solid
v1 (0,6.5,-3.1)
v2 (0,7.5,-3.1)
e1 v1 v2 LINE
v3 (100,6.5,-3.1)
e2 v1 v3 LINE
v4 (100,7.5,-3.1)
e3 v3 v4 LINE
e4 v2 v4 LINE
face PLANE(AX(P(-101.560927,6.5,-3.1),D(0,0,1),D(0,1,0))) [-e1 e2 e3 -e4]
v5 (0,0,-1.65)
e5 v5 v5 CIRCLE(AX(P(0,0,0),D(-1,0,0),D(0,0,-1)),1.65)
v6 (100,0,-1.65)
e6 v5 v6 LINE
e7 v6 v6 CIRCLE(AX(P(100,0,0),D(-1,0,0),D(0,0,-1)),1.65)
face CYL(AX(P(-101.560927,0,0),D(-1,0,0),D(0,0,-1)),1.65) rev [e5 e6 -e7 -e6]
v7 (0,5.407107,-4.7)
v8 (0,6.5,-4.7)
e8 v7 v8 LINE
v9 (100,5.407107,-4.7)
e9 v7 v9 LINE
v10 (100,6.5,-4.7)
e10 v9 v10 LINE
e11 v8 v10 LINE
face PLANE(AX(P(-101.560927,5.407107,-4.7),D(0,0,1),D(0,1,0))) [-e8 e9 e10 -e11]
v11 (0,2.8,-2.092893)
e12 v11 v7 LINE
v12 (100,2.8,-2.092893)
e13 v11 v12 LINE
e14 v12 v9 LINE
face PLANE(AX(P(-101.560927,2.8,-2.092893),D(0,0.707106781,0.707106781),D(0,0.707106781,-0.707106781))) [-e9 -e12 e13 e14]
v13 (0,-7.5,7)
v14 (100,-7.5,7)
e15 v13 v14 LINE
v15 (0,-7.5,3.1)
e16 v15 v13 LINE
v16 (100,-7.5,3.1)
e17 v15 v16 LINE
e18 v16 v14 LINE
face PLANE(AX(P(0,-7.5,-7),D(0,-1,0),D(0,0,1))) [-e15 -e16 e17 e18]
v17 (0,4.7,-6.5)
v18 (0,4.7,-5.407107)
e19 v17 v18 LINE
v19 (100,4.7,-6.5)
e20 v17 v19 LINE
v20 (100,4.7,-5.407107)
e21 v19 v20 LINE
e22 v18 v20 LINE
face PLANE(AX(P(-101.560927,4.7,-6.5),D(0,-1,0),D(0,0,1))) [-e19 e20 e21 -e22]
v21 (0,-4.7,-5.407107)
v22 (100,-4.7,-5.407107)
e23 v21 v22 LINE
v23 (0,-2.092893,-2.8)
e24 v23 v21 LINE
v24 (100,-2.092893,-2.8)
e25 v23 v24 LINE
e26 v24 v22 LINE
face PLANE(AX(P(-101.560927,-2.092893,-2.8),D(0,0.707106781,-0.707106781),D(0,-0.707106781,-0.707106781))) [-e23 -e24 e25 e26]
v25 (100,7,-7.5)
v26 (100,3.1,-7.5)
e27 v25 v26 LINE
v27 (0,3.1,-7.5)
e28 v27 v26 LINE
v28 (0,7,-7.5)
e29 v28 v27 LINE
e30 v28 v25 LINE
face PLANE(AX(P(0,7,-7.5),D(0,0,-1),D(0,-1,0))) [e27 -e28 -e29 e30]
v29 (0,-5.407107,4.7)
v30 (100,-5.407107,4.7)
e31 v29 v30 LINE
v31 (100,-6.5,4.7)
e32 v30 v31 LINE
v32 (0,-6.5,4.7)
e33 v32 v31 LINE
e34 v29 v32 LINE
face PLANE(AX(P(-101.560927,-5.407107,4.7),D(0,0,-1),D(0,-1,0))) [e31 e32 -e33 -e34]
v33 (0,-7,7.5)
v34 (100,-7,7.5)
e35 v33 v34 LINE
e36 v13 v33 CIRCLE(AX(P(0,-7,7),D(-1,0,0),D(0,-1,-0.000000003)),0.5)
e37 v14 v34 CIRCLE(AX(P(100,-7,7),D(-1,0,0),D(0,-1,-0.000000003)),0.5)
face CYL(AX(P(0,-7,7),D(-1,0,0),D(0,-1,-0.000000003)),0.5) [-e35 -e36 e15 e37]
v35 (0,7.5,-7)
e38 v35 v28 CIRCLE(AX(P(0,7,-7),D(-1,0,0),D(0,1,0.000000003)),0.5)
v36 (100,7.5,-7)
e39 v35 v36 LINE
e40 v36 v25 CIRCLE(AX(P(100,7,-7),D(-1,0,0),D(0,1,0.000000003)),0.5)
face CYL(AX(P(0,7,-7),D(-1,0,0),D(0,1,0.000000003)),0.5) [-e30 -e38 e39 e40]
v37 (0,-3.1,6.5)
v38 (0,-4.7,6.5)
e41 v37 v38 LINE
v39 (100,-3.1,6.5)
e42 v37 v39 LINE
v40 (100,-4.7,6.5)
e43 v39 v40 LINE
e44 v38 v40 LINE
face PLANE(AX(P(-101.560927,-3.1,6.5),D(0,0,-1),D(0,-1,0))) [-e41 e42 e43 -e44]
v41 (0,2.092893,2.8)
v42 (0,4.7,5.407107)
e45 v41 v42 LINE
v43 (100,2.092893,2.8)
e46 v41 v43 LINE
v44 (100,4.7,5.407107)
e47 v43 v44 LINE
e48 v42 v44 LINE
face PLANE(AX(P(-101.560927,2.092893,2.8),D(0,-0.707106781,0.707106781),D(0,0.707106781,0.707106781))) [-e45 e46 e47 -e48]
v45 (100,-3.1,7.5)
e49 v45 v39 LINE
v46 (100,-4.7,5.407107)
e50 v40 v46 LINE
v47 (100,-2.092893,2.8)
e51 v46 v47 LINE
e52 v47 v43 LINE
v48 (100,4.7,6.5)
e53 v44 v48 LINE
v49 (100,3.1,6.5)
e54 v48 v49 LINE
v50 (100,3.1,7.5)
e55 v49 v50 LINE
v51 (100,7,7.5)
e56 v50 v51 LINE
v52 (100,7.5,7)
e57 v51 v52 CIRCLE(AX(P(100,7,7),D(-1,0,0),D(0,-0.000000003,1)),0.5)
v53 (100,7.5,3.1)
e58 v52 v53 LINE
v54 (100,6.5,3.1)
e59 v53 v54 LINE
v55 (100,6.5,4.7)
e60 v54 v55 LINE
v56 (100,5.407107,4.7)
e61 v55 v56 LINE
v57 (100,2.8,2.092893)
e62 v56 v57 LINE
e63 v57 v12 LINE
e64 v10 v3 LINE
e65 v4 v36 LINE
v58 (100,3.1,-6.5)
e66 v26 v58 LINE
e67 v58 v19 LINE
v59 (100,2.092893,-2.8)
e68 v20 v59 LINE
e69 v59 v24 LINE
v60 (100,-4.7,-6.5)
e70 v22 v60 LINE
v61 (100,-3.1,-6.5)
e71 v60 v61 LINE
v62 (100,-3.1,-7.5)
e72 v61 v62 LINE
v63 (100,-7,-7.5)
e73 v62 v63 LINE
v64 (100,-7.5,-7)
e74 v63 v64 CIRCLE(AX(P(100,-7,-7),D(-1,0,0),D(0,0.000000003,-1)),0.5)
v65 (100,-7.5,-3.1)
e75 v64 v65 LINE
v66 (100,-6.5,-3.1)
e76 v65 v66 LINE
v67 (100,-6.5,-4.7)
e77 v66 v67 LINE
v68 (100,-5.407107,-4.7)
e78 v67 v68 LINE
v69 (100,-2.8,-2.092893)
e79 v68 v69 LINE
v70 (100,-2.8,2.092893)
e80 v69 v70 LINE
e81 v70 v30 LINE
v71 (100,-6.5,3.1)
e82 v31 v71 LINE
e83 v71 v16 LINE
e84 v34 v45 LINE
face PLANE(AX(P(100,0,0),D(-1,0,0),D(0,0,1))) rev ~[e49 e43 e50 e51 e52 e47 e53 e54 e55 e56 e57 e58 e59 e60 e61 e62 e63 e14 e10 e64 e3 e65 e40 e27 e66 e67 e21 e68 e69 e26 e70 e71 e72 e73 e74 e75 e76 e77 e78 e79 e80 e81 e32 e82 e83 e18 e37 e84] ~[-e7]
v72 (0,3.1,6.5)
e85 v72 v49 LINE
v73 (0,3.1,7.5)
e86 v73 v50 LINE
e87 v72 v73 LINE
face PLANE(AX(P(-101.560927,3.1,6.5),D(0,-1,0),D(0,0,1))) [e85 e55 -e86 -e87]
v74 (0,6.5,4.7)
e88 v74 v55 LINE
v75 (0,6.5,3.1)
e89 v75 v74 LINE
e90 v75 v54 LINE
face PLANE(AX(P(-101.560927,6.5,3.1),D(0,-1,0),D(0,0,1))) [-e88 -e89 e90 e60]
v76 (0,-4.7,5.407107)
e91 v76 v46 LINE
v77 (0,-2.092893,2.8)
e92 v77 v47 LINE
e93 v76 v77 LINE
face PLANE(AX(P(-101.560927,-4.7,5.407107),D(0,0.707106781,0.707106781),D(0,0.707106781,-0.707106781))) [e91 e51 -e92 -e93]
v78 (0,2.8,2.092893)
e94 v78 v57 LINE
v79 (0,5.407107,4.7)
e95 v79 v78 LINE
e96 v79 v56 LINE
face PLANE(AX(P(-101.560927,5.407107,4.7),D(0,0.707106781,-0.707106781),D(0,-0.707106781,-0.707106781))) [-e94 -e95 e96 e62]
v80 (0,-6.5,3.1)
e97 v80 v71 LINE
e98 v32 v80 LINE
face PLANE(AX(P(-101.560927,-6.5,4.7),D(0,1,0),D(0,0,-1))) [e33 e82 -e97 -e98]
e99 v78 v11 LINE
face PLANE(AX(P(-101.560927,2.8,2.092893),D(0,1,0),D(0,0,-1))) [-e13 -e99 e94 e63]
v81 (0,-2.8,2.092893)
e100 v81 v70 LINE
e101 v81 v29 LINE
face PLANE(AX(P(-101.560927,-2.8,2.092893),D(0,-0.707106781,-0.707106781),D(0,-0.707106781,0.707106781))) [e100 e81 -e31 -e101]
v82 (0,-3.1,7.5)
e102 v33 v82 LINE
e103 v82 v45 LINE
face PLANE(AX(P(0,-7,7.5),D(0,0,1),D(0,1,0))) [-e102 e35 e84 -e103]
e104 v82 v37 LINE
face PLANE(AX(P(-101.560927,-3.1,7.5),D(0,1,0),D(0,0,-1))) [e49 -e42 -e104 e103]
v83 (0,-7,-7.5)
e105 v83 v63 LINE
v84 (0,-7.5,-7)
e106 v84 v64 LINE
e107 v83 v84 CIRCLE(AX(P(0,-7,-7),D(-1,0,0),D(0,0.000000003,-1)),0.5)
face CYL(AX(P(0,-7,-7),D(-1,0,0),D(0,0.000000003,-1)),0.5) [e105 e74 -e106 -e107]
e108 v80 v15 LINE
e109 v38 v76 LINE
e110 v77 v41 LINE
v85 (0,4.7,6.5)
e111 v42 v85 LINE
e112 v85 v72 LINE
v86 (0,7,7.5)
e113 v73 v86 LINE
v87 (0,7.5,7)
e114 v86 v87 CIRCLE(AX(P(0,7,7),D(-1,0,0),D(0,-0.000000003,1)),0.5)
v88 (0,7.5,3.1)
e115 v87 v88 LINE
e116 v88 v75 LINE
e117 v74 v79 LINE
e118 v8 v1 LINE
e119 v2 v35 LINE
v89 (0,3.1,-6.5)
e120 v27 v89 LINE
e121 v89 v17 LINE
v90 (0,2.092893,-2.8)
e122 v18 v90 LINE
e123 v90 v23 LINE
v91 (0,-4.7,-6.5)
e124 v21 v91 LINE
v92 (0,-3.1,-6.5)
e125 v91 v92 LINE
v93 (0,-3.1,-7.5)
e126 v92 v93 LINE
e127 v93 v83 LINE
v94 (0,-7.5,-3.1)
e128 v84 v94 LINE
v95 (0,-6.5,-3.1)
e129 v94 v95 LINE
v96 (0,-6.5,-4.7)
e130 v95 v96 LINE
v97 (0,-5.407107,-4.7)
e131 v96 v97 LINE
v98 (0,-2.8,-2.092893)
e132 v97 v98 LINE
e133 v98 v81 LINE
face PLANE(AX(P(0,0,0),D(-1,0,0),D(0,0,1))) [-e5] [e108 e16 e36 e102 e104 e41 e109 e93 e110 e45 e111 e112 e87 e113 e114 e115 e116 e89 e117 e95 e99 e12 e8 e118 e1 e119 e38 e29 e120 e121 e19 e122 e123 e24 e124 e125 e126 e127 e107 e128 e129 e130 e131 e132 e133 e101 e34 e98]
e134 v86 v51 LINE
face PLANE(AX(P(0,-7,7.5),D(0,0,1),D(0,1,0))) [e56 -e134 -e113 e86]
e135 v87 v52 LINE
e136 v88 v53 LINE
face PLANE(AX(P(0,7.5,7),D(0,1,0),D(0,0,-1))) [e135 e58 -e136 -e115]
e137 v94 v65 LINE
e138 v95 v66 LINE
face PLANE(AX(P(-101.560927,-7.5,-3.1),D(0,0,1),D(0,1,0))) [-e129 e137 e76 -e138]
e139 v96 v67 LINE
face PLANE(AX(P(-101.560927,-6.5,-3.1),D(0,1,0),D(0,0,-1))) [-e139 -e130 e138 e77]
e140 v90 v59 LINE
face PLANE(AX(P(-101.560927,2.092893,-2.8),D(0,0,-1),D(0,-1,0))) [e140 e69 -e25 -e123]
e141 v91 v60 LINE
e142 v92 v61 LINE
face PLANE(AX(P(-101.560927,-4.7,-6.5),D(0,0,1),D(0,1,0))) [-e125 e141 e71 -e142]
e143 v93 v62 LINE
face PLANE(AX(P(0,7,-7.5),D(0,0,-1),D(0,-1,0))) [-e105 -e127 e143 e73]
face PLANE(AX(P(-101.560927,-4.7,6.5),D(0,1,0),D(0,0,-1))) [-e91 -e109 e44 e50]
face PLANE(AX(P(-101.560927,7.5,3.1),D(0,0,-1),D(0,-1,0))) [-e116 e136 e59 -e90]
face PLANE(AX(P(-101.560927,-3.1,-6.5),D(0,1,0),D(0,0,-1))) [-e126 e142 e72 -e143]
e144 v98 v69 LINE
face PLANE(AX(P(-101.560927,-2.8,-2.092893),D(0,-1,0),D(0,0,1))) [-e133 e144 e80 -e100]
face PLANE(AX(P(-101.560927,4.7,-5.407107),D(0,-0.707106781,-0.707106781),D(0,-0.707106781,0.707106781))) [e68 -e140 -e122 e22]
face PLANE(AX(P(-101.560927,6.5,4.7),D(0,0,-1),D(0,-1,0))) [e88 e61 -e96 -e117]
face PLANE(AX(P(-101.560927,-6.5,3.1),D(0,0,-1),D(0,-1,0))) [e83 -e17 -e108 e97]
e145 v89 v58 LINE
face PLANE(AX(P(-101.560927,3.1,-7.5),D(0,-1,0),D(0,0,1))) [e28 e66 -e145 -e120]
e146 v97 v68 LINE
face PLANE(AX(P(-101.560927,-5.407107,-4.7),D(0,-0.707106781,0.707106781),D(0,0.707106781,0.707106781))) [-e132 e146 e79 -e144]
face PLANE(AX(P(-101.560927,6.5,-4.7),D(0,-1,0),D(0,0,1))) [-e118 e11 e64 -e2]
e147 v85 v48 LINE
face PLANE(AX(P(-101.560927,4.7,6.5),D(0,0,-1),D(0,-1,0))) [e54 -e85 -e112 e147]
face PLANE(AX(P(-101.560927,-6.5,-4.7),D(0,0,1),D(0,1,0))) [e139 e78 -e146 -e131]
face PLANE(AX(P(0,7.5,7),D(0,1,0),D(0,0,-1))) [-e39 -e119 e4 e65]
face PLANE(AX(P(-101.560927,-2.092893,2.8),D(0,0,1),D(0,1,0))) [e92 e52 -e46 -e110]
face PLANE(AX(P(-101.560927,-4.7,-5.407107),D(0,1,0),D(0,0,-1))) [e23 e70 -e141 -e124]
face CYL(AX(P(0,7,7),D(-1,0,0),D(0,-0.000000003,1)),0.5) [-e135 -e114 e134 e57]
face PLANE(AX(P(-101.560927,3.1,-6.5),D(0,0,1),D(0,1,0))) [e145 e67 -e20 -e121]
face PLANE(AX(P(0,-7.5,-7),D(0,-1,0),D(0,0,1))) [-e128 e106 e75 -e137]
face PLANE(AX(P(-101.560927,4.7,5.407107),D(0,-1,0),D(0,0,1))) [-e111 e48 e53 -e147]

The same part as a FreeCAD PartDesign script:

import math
import FreeCAD as App
import Part
import Sketcher

V = App.Vector

doc = App.newDocument("Part")
body = doc.addObject("PartDesign::Body", "Body")

# Sketch on YZ plane
sketch1 = doc.addObject("Sketcher::SketchObject", "Sketch")
body.addObject(sketch1)
sketch1.AttachmentSupport = (doc.YZ_Plane, [""])
sketch1.MapMode = "FlatFace"
sketch1.addGeometry([
    Part.LineSegment(V(7.5, -7, 0), V(7.5, 7, 0)),  # 0
    Part.ArcOfCircle(Part.Circle(V(7, 7, 0), V(0, 0, 1), 0.5), math.radians(0), math.radians(90)),  # 1
    Part.LineSegment(V(7, 7.5, 0), V(-7, 7.5, 0)),  # 2
    Part.ArcOfCircle(Part.Circle(V(-7, 7, 0), V(0, 0, 1), 0.5), math.radians(90), math.radians(180)),  # 3
    Part.LineSegment(V(-7.5, 7, 0), V(-7.5, -7, 0)),  # 4
    Part.ArcOfCircle(Part.Circle(V(-7, -7, 0), V(0, 0, 1), 0.5), math.radians(180), math.radians(270)),  # 5
    Part.LineSegment(V(-7, -7.5, 0), V(7, -7.5, 0)),  # 6
    Part.ArcOfCircle(Part.Circle(V(7, -7, 0), V(0, 0, 1), 0.5), math.radians(-90), math.radians(0)),  # 7
], False)
sketch1.addConstraint([
    Sketcher.Constraint("Tangent", 0, 2, 1, 1),
    Sketcher.Constraint("Tangent", 1, 2, 2, 1),
    Sketcher.Constraint("Tangent", 2, 2, 3, 1),
    Sketcher.Constraint("Tangent", 3, 2, 4, 1),
    Sketcher.Constraint("Tangent", 4, 2, 5, 1),
    Sketcher.Constraint("Tangent", 5, 2, 6, 1),
    Sketcher.Constraint("Tangent", 6, 2, 7, 1),
    Sketcher.Constraint("Tangent", 7, 2, 0, 1),
    Sketcher.Constraint("Vertical", 0),
    Sketcher.Constraint("Horizontal", 2),
    Sketcher.Constraint("Vertical", 4),
    Sketcher.Constraint("Horizontal", 6),
    Sketcher.Constraint("Equal", 1, 3),
    Sketcher.Constraint("Equal", 3, 5),
    Sketcher.Constraint("Equal", 5, 7),
    Sketcher.Constraint("Symmetric", 1, 3, 5, 3, -1, 1),
    Sketcher.Constraint("Equal", 6, 0),
    Sketcher.Constraint("Radius", 1, 0.5),
    Sketcher.Constraint("DistanceX", 2, 2, 2, 1, 14.0),
])
pad1 = doc.addObject("PartDesign::Pad", "Pad")
body.addObject(pad1)
pad1.Profile = sketch1
pad1.Length = 100

# Sketch on YZ plane
sketch2 = doc.addObject("Sketcher::SketchObject", "Sketch001")
body.addObject(sketch2)
sketch2.AttachmentSupport = (doc.YZ_Plane, [""])
sketch2.MapMode = "FlatFace"
sketch2.addGeometry([
    Part.LineSegment(V(-6.5, 3.1, 0), V(-7.5, 3.1, 0)),  # 0
    Part.LineSegment(V(-7.5, 3.1, 0), V(-7.5, -3.1, 0)),  # 1
    Part.LineSegment(V(-7.5, -3.1, 0), V(-6.5, -3.1, 0)),  # 2
    Part.LineSegment(V(-6.5, -3.1, 0), V(-6.5, -4.7, 0)),  # 3
    Part.LineSegment(V(-6.5, -4.7, 0), V(-5.4, -4.7, 0)),  # 4
    Part.LineSegment(V(-5.4, -4.7, 0), V(-2.8, -2.1, 0)),  # 5
    Part.LineSegment(V(-2.8, -2.1, 0), V(-2.8, 2.1, 0)),  # 6
    Part.LineSegment(V(-2.8, 2.1, 0), V(-5.4, 4.7, 0)),  # 7
    Part.LineSegment(V(-5.4, 4.7, 0), V(-6.5, 4.7, 0)),  # 8
    Part.LineSegment(V(-6.5, 4.7, 0), V(-6.5, 3.1, 0)),  # 9
    Part.LineSegment(V(3.1, 6.5, 0), V(3.1, 7.5, 0)),  # 10
    Part.LineSegment(V(3.1, 7.5, 0), V(-3.1, 7.5, 0)),  # 11
    Part.LineSegment(V(-3.1, 7.5, 0), V(-3.1, 6.5, 0)),  # 12
    Part.LineSegment(V(-3.1, 6.5, 0), V(-4.7, 6.5, 0)),  # 13
    Part.LineSegment(V(-4.7, 6.5, 0), V(-4.7, 5.4, 0)),  # 14
    Part.LineSegment(V(-4.7, 5.4, 0), V(-2.1, 2.8, 0)),  # 15
    Part.LineSegment(V(-2.1, 2.8, 0), V(2.1, 2.8, 0)),  # 16
    Part.LineSegment(V(2.1, 2.8, 0), V(4.7, 5.4, 0)),  # 17
    Part.LineSegment(V(4.7, 5.4, 0), V(4.7, 6.5, 0)),  # 18
    Part.LineSegment(V(4.7, 6.5, 0), V(3.1, 6.5, 0)),  # 19
    Part.LineSegment(V(6.5, -4.7, 0), V(6.5, -3.1, 0)),  # 20
    Part.LineSegment(V(6.5, -3.1, 0), V(7.5, -3.1, 0)),  # 21
    Part.LineSegment(V(7.5, -3.1, 0), V(7.5, 3.1, 0)),  # 22
    Part.LineSegment(V(7.5, 3.1, 0), V(6.5, 3.1, 0)),  # 23
    Part.LineSegment(V(6.5, 3.1, 0), V(6.5, 4.7, 0)),  # 24
    Part.LineSegment(V(6.5, 4.7, 0), V(5.4, 4.7, 0)),  # 25
    Part.LineSegment(V(5.4, 4.7, 0), V(2.8, 2.1, 0)),  # 26
    Part.LineSegment(V(2.8, 2.1, 0), V(2.8, -2.1, 0)),  # 27
    Part.LineSegment(V(2.8, -2.1, 0), V(5.4, -4.7, 0)),  # 28
    Part.LineSegment(V(5.4, -4.7, 0), V(6.5, -4.7, 0)),  # 29
    Part.LineSegment(V(-3.1, -7.5, 0), V(3.1, -7.5, 0)),  # 30
    Part.LineSegment(V(3.1, -7.5, 0), V(3.1, -6.5, 0)),  # 31
    Part.LineSegment(V(3.1, -6.5, 0), V(4.7, -6.5, 0)),  # 32
    Part.LineSegment(V(4.7, -6.5, 0), V(4.7, -5.4, 0)),  # 33
    Part.LineSegment(V(4.7, -5.4, 0), V(2.1, -2.8, 0)),  # 34
    Part.LineSegment(V(2.1, -2.8, 0), V(-2.1, -2.8, 0)),  # 35
    Part.LineSegment(V(-2.1, -2.8, 0), V(-4.7, -5.4, 0)),  # 36
    Part.LineSegment(V(-4.7, -5.4, 0), V(-4.7, -6.5, 0)),  # 37
    Part.LineSegment(V(-4.7, -6.5, 0), V(-3.1, -6.5, 0)),  # 38
    Part.LineSegment(V(-3.1, -6.5, 0), V(-3.1, -7.5, 0)),  # 39
    Part.Circle(V(0, 0, 0), V(0, 0, 1), 1.6),  # 40
], False)
sketch2.addConstraint([
    Sketcher.Constraint("Coincident", 0, 2, 1, 1),
    Sketcher.Constraint("Coincident", 1, 2, 2, 1),
    Sketcher.Constraint("Coincident", 2, 2, 3, 1),
    Sketcher.Constraint("Coincident", 3, 2, 4, 1),
    Sketcher.Constraint("Coincident", 4, 2, 5, 1),
    Sketcher.Constraint("Coincident", 5, 2, 6, 1),
    Sketcher.Constraint("Coincident", 6, 2, 7, 1),
    Sketcher.Constraint("Coincident", 7, 2, 8, 1),
    Sketcher.Constraint("Coincident", 8, 2, 9, 1),
    Sketcher.Constraint("Coincident", 9, 2, 0, 1),
    Sketcher.Constraint("Coincident", 10, 2, 11, 1),
    Sketcher.Constraint("Coincident", 11, 2, 12, 1),
    Sketcher.Constraint("Coincident", 12, 2, 13, 1),
    Sketcher.Constraint("Coincident", 13, 2, 14, 1),
    Sketcher.Constraint("Coincident", 14, 2, 15, 1),
    Sketcher.Constraint("Coincident", 15, 2, 16, 1),
    Sketcher.Constraint("Coincident", 16, 2, 17, 1),
    Sketcher.Constraint("Coincident", 17, 2, 18, 1),
    Sketcher.Constraint("Coincident", 18, 2, 19, 1),
    Sketcher.Constraint("Coincident", 19, 2, 10, 1),
    Sketcher.Constraint("Coincident", 20, 2, 21, 1),
    Sketcher.Constraint("Coincident", 21, 2, 22, 1),
    Sketcher.Constraint("Coincident", 22, 2, 23, 1),
    Sketcher.Constraint("Coincident", 23, 2, 24, 1),
    Sketcher.Constraint("Coincident", 24, 2, 25, 1),
    Sketcher.Constraint("Coincident", 25, 2, 26, 1),
    Sketcher.Constraint("Coincident", 26, 2, 27, 1),
    Sketcher.Constraint("Coincident", 27, 2, 28, 1),
    Sketcher.Constraint("Coincident", 28, 2, 29, 1),
    Sketcher.Constraint("Coincident", 29, 2, 20, 1),
    Sketcher.Constraint("Coincident", 30, 2, 31, 1),
    Sketcher.Constraint("Coincident", 31, 2, 32, 1),
    Sketcher.Constraint("Coincident", 32, 2, 33, 1),
    Sketcher.Constraint("Coincident", 33, 2, 34, 1),
    Sketcher.Constraint("Coincident", 34, 2, 35, 1),
    Sketcher.Constraint("Coincident", 35, 2, 36, 1),
    Sketcher.Constraint("Coincident", 36, 2, 37, 1),
    Sketcher.Constraint("Coincident", 37, 2, 38, 1),
    Sketcher.Constraint("Coincident", 38, 2, 39, 1),
    Sketcher.Constraint("Coincident", 39, 2, 30, 1),
    Sketcher.Constraint("Horizontal", 0),
    Sketcher.Constraint("Vertical", 1),
    Sketcher.Constraint("Horizontal", 2),
    Sketcher.Constraint("Vertical", 3),
    Sketcher.Constraint("Horizontal", 4),
    Sketcher.Constraint("Vertical", 6),
    Sketcher.Constraint("Horizontal", 8),
    Sketcher.Constraint("Vertical", 9),
    Sketcher.Constraint("Vertical", 10),
    Sketcher.Constraint("Horizontal", 11),
    Sketcher.Constraint("Vertical", 12),
    Sketcher.Constraint("Horizontal", 13),
    Sketcher.Constraint("Vertical", 14),
    Sketcher.Constraint("Horizontal", 16),
    Sketcher.Constraint("Vertical", 18),
    Sketcher.Constraint("Horizontal", 19),
    Sketcher.Constraint("Vertical", 20),
    Sketcher.Constraint("Horizontal", 21),
    Sketcher.Constraint("Vertical", 22),
    Sketcher.Constraint("Horizontal", 23),
    Sketcher.Constraint("Vertical", 24),
    Sketcher.Constraint("Horizontal", 25),
    Sketcher.Constraint("Vertical", 27),
    Sketcher.Constraint("Horizontal", 29),
    Sketcher.Constraint("Horizontal", 30),
    Sketcher.Constraint("Vertical", 31),
    Sketcher.Constraint("Horizontal", 32),
    Sketcher.Constraint("Vertical", 33),
    Sketcher.Constraint("Horizontal", 35),
    Sketcher.Constraint("Vertical", 37),
    Sketcher.Constraint("Horizontal", 38),
    Sketcher.Constraint("Vertical", 39),
    Sketcher.Constraint("Coincident", 40, 3, -1, 1),
    Sketcher.Constraint("Symmetric", 9, 2, 20, 2, -1, 1),
    Sketcher.Constraint("Symmetric", 1, 2, 22, 2, -1, 1),
    Sketcher.Constraint("Symmetric", 3, 2, 24, 2, -1, 1),
    Sketcher.Constraint("Symmetric", 5, 2, 26, 2, -1, 1),
    Sketcher.Constraint("Symmetric", 7, 2, 28, 2, -1, 1),
    Sketcher.Constraint("Symmetric", 11, 2, 30, 2, -1, 1),
    Sketcher.Constraint("Symmetric", 13, 2, 32, 2, -1, 1),
    Sketcher.Constraint("Symmetric", 15, 2, 34, 2, -1, 1),
    Sketcher.Constraint("Symmetric", 17, 2, 36, 2, -1, 1),
    Sketcher.Constraint("Symmetric", 19, 2, 38, 2, -1, 1),
    Sketcher.Constraint("Symmetric", 14, 2, 17, 2, -2),
    Sketcher.Constraint("Symmetric", 12, 2, 19, 2, -2),
    Sketcher.Constraint("Symmetric", 2, 2, 20, 2, -2),
    Sketcher.Constraint("Symmetric", 7, 2, 25, 2, -2),
    Sketcher.Constraint("Perpendicular", 5, 7),
    Sketcher.Constraint("Parallel", 7, 15),
    Sketcher.Constraint("Perpendicular", 15, 17),
    Sketcher.Constraint("Parallel", 17, 26),
    Sketcher.Constraint("Perpendicular", 26, 28),
    Sketcher.Constraint("Parallel", 28, 34),
    Sketcher.Constraint("Perpendicular", 34, 36),
    Sketcher.Constraint("Horizontal", 6, 2, 26, 2),
    Sketcher.Constraint("Equal", 30, 1),
    Sketcher.Constraint("Equal", 38, 3),
    Sketcher.Constraint("Equal", 35, 6),
    Sketcher.Constraint("Equal", 23, 10),
    Sketcher.Constraint("Equal", 29, 14),
    Sketcher.Constraint("Diameter", 40, 3.3),
    Sketcher.Constraint("DistanceX", 0, 2, 0, 1, 1.0),
    Sketcher.Constraint("DistanceX", 11, 2, 11, 1, 6.2),
    Sketcher.Constraint("DistanceX", 13, 2, 13, 1, 1.6),
    Sketcher.Constraint("DistanceX", 0, 2, -1, 1, 7.5),
    Sketcher.Constraint("DistanceX", 5, 2, -1, 1, 2.8),
    Sketcher.Constraint("DistanceY", -1, 1, 10, 2, 7.5),
    Sketcher.Constraint("DistanceX", 4, 1, 4, 2, 1.092893),
])
pocket1 = doc.addObject("PartDesign::Pocket", "Pocket")
body.addObject(pocket1)
pocket1.Profile = sketch2
pocket1.Type = "ThroughAll"
pocket1.Midplane = True

doc.recompute()
